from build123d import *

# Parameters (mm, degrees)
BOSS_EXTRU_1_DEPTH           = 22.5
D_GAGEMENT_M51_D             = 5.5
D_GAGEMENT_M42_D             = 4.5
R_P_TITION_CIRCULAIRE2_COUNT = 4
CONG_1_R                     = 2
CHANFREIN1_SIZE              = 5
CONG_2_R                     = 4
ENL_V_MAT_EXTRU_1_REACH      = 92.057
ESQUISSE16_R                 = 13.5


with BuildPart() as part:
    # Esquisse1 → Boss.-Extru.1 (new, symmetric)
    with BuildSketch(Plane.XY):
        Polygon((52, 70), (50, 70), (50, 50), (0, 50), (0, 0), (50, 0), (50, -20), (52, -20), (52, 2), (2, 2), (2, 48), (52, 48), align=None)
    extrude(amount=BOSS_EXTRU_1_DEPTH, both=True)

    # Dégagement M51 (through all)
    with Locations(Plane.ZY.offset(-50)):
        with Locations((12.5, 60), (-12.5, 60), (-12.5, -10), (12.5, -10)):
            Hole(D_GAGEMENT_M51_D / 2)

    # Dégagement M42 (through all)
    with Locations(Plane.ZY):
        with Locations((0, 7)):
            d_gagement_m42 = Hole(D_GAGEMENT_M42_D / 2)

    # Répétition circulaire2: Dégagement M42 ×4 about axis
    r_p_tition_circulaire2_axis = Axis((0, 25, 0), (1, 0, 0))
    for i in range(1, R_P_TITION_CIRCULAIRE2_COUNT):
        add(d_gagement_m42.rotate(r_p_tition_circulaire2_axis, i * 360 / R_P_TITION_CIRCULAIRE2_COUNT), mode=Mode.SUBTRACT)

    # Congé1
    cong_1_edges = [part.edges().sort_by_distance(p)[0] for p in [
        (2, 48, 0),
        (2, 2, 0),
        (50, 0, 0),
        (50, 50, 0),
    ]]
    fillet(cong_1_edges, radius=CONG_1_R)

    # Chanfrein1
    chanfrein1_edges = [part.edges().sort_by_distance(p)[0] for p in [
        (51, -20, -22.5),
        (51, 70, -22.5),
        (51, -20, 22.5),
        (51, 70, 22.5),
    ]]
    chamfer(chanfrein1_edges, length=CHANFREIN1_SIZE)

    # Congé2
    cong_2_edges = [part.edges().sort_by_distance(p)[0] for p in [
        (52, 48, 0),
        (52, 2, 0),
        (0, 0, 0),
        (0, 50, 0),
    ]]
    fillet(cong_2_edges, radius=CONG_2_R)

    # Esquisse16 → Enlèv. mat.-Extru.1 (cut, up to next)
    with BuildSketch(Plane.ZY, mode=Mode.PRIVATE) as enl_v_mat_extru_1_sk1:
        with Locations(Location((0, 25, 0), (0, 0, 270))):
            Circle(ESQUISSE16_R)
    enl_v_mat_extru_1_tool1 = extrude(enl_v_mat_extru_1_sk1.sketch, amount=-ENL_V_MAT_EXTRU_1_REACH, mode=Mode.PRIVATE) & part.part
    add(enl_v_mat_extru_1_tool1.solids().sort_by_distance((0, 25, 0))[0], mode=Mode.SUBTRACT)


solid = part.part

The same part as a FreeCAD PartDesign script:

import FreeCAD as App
import Part
import Sketcher
from FreeCAD import Vector


def edges_at(feature, points):
    """Names of the edges that pass closest to the given points."""
    edges = feature.Shape.Edges
    near = lambda p: min(range(len(edges)), key=lambda i: edges[i].distToShape(Part.Vertex(*p))[0])
    return sorted({f"Edge{near(p) + 1}" for p in points})

doc = App.newDocument("Part")
body = doc.addObject("PartDesign::Body", "Body")

sketch1 = body.newObject("Sketcher::SketchObject", "Sketch")
sketch1.AttachmentSupport = (doc.getObject("XY_Plane"), [""])
sketch1.MapMode = "FlatFace"
sketch1.addGeometry([
    Part.LineSegment(Vector(52, 70, 0), Vector(50, 70, 0)),
    Part.LineSegment(Vector(50, 70, 0), Vector(50, 50, 0)),
    Part.LineSegment(Vector(50, 50, 0), Vector(0, 50, 0)),
    Part.LineSegment(Vector(0, 50, 0), Vector(0, 0, 0)),
    Part.LineSegment(Vector(0, 0, 0), Vector(50, 0, 0)),
    Part.LineSegment(Vector(50, 0, 0), Vector(50, -20, 0)),
    Part.LineSegment(Vector(50, -20, 0), Vector(52, -20, 0)),
    Part.LineSegment(Vector(52, -20, 0), Vector(52, 2, 0)),
    Part.LineSegment(Vector(52, 2, 0), Vector(2, 2, 0)),
    Part.LineSegment(Vector(2, 2, 0), Vector(2, 48, 0)),
    Part.LineSegment(Vector(2, 48, 0), Vector(52, 48, 0)),
    Part.LineSegment(Vector(52, 48, 0), Vector(52, 70, 0)),
], False)
sketch1.addConstraint([
    Sketcher.Constraint("Coincident", 0, 2, 1, 1),
    Sketcher.Constraint("Coincident", 1, 2, 2, 1),
    Sketcher.Constraint("Coincident", 2, 2, 3, 1),
    Sketcher.Constraint("Coincident", 3, 2, 4, 1),
    Sketcher.Constraint("Coincident", 4, 2, 5, 1),
    Sketcher.Constraint("Coincident", 5, 2, 6, 1),
    Sketcher.Constraint("Coincident", 6, 2, 7, 1),
    Sketcher.Constraint("Coincident", 7, 2, 8, 1),
    Sketcher.Constraint("Coincident", 8, 2, 9, 1),
    Sketcher.Constraint("Coincident", 9, 2, 10, 1),
    Sketcher.Constraint("Coincident", 10, 2, 11, 1),
    Sketcher.Constraint("Coincident", 11, 2, 0, 1),
    Sketcher.Constraint("Horizontal", 0),
    Sketcher.Constraint("Vertical", 1),
    Sketcher.Constraint("Horizontal", 2),
    Sketcher.Constraint("Vertical", 3),
    Sketcher.Constraint("Horizontal", 4),
    Sketcher.Constraint("Vertical", 5),
    Sketcher.Constraint("Horizontal", 6),
    Sketcher.Constraint("Vertical", 7),
    Sketcher.Constraint("Horizontal", 8),
    Sketcher.Constraint("Vertical", 9),
    Sketcher.Constraint("Horizontal", 10),
    Sketcher.Constraint("Vertical", 11),
    Sketcher.Constraint("Coincident", 3, 2, -1, 1),
    Sketcher.Constraint("Vertical", 1, 2, 4, 2),
    Sketcher.Constraint("Vertical", 7, 2, 10, 2),
    Sketcher.Constraint("Equal", 4, 8),
    Sketcher.Constraint("Equal", 10, 3),
    Sketcher.Constraint("Equal", 1, 5),
    Sketcher.Constraint("Equal", 7, 11),
    Sketcher.Constraint("DistanceX", 0, 2, 0, 1, 2.0),
    Sketcher.Constraint("DistanceX", 2, 2, 2, 1, 50.0),
    Sketcher.Constraint("DistanceY", 1, 2, 1, 1, 20.0),
    Sketcher.Constraint("DistanceY", 7, 1, 7, 2, 22.0),
])
pad1 = body.newObject("PartDesign::Pad", "Pad")
pad1.Profile = sketch1
pad1.Length = 45
pad1.Midplane = True

sketch2 = body.newObject("Sketcher::SketchObject", "Sketch001")
sketch2.AttachmentSupport = (doc.getObject("YZ_Plane"), [""])
sketch2.MapMode = "FlatFace"
sketch2.AttachmentOffset = App.Placement(Vector(0, 0, 50), App.Rotation())
sketch2.addGeometry([
    Part.Circle(Vector(60, 12.5, 0), Vector(0, 0, 1), 2.8),
    Part.Circle(Vector(60, -12.5, 0), Vector(0, 0, 1), 2.8),
    Part.Circle(Vector(-10, -12.5, 0), Vector(0, 0, 1), 2.8),
    Part.Circle(Vector(-10, 12.5, 0), Vector(0, 0, 1), 2.8),
], False)
sketch2.addConstraint([
    Sketcher.Constraint("Equal", 0, 1),
    Sketcher.Constraint("Equal", 1, 2),
    Sketcher.Constraint("Equal", 2, 3),
    Sketcher.Constraint("Symmetric", 0, 3, 1, 3, -1),
    Sketcher.Constraint("Symmetric", 2, 3, 3, 3, -1),
    Sketcher.Constraint("Horizontal", 1, 3, 2, 3),
    Sketcher.Constraint("Diameter", 0, 5.5),
    Sketcher.Constraint("DistanceX", -1, 1, 0, 3, 60.0),
    Sketcher.Constraint("DistanceX", 2, 3, -1, 1, 10.0),
    Sketcher.Constraint("DistanceY", 1, 3, 0, 3, 25.0),
])
doc.recompute()
hole = body.newObject("PartDesign::Hole", "Hole")
hole.Profile = sketch2
hole.ThreadType = "None"
hole.Diameter = 5.5
hole.DepthType = "ThroughAll"
hole.Reversed = True

sketch3 = body.newObject("Sketcher::SketchObject", "Sketch002")
sketch3.AttachmentSupport = (doc.getObject("YZ_Plane"), [""])
sketch3.MapMode = "FlatFace"
sketch3.addGeometry(Part.Circle(Vector(7, 0, 0), Vector(0, 0, 1), 2.2), False)
sketch3.addConstraint([
    Sketcher.Constraint("PointOnObject", 0, 3, -1),
    Sketcher.Constraint("Diameter", 0, 4.5),
    Sketcher.Constraint("DistanceX", -1, 1, 0, 3, 7.0),
])
doc.recompute()
hole2 = body.newObject("PartDesign::Hole", "Hole001")
hole2.Profile = sketch3
hole2.ThreadType = "None"
hole2.Diameter = 4.5
hole2.DepthType = "ThroughAll"
hole2.Reversed = True
doc.recompute()

datumline = body.newObject("PartDesign::Line", "DatumLine")
datumline.Placement = App.Placement(Vector(0, 25, 0), App.Rotation(Vector(0, 0, 1), Vector(1, 0, 0)))
polarpattern = body.newObject("PartDesign::PolarPattern", "PolarPattern")
polarpattern.Originals = [hole2]
polarpattern.Axis = (datumline, [""])
polarpattern.Angle = 360
polarpattern.Occurrences = 4
body.Tip = polarpattern
doc.recompute()

fillet = body.newObject("PartDesign::Fillet", "Fillet")
fillet.Base = (polarpattern, edges_at(polarpattern, [
    (2, 48, 0),
    (2, 2, 0),
    (50, 0, 0),
    (50, 50, 0),
]))
fillet.Radius = 2
doc.recompute()

chamfer = body.newObject("PartDesign::Chamfer", "Chamfer")
chamfer.Base = (fillet, edges_at(fillet, [
    (51, -20, -22.5),
    (51, 70, -22.5),
    (51, -20, 22.5),
    (51, 70, 22.5),
]))
chamfer.Size = 5
doc.recompute()

fillet2 = body.newObject("PartDesign::Fillet", "Fillet001")
fillet2.Base = (chamfer, edges_at(chamfer, [
    (52, 48, 0),
    (52, 2, 0),
    (0, 0, 0),
    (0, 50, 0),
]))
fillet2.Radius = 4

sketch4 = body.newObject("Sketcher::SketchObject", "Sketch003")
sketch4.AttachmentSupport = (doc.getObject("YZ_Plane"), [""])
sketch4.MapMode = "FlatFace"
sketch4.addGeometry(Part.Circle(Vector(25, 0, 0), Vector(0, 0, 1), 14), False)
sketch4.addConstraint([
    Sketcher.Constraint("PointOnObject", 0, 3, -1),
    Sketcher.Constraint("Diameter", 0, 27.0),
    Sketcher.Constraint("DistanceX", -1, 1, 0, 3, 25.0),
])
pocket1 = body.newObject("PartDesign::Pocket", "Pocket")
pocket1.Profile = sketch4
pocket1.Type = "UpToFirst"
pocket1.Reversed = True

doc.recompute()
